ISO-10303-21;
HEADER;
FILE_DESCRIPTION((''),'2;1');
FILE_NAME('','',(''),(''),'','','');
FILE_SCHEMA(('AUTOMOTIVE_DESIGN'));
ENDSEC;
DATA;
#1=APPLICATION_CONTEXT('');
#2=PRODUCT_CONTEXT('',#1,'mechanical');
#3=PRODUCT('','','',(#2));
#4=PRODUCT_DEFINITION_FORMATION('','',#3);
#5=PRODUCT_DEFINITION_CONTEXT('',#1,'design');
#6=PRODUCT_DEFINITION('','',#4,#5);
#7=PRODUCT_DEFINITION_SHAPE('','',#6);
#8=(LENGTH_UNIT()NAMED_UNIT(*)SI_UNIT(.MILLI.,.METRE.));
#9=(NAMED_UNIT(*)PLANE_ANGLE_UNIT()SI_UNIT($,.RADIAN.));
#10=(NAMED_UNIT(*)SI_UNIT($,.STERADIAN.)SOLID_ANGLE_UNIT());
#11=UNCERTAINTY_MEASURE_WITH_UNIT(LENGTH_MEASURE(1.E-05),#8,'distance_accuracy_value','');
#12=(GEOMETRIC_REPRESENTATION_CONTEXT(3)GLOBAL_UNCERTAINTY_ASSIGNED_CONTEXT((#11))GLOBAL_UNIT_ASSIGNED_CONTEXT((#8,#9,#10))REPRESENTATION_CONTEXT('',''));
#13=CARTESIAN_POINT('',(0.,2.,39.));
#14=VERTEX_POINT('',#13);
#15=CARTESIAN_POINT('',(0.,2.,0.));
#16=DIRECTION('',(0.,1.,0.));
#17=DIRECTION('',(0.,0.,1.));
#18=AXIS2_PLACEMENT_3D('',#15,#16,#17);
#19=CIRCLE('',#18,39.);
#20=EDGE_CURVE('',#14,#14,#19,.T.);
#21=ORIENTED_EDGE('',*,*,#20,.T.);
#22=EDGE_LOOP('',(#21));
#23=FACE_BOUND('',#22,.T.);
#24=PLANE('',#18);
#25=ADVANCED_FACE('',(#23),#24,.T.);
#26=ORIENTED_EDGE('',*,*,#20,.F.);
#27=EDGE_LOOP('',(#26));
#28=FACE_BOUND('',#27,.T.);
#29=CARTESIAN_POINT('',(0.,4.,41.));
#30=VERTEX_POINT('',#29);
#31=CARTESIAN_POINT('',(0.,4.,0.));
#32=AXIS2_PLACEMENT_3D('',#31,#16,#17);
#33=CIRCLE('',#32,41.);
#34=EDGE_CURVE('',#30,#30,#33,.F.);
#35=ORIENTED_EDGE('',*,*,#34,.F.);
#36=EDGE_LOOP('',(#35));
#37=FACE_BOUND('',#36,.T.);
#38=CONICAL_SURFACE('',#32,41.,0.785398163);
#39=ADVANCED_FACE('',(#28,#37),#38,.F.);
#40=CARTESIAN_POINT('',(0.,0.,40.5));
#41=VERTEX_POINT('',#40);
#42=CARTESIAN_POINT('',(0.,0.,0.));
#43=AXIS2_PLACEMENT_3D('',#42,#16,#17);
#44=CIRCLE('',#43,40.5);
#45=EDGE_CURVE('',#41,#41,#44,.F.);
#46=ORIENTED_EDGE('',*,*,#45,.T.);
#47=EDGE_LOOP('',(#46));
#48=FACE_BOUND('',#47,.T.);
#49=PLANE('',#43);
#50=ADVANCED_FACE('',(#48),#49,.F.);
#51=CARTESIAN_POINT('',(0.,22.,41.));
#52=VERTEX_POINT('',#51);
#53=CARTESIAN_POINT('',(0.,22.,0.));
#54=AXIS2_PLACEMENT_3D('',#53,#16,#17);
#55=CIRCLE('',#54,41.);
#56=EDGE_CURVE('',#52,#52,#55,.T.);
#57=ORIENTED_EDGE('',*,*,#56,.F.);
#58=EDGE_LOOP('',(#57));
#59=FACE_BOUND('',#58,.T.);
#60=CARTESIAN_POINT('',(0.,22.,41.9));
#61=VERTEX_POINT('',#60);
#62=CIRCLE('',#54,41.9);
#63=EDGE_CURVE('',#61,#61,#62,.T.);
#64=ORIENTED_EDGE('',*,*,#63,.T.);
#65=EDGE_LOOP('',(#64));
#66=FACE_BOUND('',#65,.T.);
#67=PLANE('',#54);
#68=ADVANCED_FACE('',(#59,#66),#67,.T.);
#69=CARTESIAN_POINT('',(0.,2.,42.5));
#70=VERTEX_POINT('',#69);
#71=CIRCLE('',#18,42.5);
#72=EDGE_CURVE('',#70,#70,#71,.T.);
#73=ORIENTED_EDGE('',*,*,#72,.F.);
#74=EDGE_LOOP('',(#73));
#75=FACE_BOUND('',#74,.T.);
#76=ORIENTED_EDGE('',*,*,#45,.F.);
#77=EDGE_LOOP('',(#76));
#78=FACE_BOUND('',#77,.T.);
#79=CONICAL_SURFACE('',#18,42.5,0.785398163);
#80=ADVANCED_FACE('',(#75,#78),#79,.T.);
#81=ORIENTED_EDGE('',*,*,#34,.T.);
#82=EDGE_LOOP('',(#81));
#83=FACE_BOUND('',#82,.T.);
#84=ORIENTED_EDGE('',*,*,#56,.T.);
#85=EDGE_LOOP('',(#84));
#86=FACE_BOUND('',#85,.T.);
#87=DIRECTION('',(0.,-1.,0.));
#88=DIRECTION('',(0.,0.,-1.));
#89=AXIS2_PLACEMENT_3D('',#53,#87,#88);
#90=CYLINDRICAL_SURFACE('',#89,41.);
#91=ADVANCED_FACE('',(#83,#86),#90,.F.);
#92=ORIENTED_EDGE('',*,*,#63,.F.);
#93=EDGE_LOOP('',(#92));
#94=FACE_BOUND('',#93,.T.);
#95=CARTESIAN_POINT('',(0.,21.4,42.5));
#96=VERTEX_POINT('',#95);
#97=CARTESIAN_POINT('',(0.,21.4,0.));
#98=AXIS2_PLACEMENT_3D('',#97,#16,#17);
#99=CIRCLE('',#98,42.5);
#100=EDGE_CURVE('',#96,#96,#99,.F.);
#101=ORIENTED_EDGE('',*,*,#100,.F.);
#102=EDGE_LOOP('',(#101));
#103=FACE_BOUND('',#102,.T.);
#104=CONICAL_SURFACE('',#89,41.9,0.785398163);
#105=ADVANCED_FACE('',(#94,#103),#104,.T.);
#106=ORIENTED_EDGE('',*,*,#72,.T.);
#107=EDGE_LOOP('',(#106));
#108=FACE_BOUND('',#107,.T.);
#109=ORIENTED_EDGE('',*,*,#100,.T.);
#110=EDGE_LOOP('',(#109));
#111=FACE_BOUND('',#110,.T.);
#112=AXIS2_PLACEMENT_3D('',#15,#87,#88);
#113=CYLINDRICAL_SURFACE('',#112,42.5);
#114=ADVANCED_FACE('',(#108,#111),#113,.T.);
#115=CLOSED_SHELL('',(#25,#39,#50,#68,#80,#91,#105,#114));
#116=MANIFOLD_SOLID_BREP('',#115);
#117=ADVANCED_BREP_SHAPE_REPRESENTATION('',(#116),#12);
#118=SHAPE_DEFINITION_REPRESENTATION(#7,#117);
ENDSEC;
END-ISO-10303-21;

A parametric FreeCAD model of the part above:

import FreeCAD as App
import Part
import Sketcher
from FreeCAD import Vector
Q = App.Units.Quantity


def edges_at(feature, points):
    """Names of the edges that pass closest to the given points."""
    edges = feature.Shape.Edges
    near = lambda p: min(range(len(edges)), key=lambda i: edges[i].distToShape(Part.Vertex(*p))[0])
    return sorted({f"Edge{near(p) + 1}" for p in points})

doc = App.newDocument("Part")
body = doc.addObject("PartDesign::Body", "Body")

sketch1 = body.newObject("Sketcher::SketchObject", "Sketch")
sketch1.AttachmentSupport = (doc.getObject("XZ_Plane"), [""])
sketch1.MapMode = "FlatFace"
sketch1.addGeometry(Part.Circle(Vector(0, 0, 0), Vector(0, 0, 1), 42), False)
sketch1.addConstraint([
    Sketcher.Constraint("Coincident", 0, 3, -1, 1),
    Sketcher.Constraint("Diameter", 0, Q("85 mm")),
])
pad1 = body.newObject("PartDesign::Pad", "Pad")
pad1.Profile = sketch1
pad1.Length = 2
pad1.Reversed = True

sketch2 = body.newObject("Sketcher::SketchObject", "Sketch001")
sketch2.AttachmentSupport = (doc.getObject("XZ_Plane"), [""])
sketch2.MapMode = "FlatFace"
sketch2.AttachmentOffset = App.Placement(Vector(0, 0, -2), App.Rotation())
sketch2.addGeometry([
    Part.Circle(Vector(0, 0, 0), Vector(0, 0, 1), 42),
    Part.Circle(Vector(0, 0, 0), Vector(0, 0, 1), 41),
], False)
sketch2.addConstraint([
    Sketcher.Constraint("Coincident", 0, 3, -1, 1),
    Sketcher.Constraint("Coincident", 1, 3, -1, 1),
    Sketcher.Constraint("Diameter", 0, Q("85 mm")),
    Sketcher.Constraint("Diameter", 1, Q("82 mm")),
])
pad2 = body.newObject("PartDesign::Pad", "Pad001")
pad2.Profile = sketch2
pad2.Length = 20
pad2.Reversed = True
doc.recompute()

chamfer = body.newObject("PartDesign::Chamfer", "Chamfer")
chamfer.Base = (pad2, edges_at(pad2, [(0, 0, -42.5), (0, 2, -41)]))
chamfer.Size = 2
doc.recompute()

chamfer2 = body.newObject("PartDesign::Chamfer", "Chamfer001")
chamfer2.Base = (chamfer, edges_at(chamfer, [(0, 22, -42.5)]))
chamfer2.Size = 0.6

doc.recompute()
